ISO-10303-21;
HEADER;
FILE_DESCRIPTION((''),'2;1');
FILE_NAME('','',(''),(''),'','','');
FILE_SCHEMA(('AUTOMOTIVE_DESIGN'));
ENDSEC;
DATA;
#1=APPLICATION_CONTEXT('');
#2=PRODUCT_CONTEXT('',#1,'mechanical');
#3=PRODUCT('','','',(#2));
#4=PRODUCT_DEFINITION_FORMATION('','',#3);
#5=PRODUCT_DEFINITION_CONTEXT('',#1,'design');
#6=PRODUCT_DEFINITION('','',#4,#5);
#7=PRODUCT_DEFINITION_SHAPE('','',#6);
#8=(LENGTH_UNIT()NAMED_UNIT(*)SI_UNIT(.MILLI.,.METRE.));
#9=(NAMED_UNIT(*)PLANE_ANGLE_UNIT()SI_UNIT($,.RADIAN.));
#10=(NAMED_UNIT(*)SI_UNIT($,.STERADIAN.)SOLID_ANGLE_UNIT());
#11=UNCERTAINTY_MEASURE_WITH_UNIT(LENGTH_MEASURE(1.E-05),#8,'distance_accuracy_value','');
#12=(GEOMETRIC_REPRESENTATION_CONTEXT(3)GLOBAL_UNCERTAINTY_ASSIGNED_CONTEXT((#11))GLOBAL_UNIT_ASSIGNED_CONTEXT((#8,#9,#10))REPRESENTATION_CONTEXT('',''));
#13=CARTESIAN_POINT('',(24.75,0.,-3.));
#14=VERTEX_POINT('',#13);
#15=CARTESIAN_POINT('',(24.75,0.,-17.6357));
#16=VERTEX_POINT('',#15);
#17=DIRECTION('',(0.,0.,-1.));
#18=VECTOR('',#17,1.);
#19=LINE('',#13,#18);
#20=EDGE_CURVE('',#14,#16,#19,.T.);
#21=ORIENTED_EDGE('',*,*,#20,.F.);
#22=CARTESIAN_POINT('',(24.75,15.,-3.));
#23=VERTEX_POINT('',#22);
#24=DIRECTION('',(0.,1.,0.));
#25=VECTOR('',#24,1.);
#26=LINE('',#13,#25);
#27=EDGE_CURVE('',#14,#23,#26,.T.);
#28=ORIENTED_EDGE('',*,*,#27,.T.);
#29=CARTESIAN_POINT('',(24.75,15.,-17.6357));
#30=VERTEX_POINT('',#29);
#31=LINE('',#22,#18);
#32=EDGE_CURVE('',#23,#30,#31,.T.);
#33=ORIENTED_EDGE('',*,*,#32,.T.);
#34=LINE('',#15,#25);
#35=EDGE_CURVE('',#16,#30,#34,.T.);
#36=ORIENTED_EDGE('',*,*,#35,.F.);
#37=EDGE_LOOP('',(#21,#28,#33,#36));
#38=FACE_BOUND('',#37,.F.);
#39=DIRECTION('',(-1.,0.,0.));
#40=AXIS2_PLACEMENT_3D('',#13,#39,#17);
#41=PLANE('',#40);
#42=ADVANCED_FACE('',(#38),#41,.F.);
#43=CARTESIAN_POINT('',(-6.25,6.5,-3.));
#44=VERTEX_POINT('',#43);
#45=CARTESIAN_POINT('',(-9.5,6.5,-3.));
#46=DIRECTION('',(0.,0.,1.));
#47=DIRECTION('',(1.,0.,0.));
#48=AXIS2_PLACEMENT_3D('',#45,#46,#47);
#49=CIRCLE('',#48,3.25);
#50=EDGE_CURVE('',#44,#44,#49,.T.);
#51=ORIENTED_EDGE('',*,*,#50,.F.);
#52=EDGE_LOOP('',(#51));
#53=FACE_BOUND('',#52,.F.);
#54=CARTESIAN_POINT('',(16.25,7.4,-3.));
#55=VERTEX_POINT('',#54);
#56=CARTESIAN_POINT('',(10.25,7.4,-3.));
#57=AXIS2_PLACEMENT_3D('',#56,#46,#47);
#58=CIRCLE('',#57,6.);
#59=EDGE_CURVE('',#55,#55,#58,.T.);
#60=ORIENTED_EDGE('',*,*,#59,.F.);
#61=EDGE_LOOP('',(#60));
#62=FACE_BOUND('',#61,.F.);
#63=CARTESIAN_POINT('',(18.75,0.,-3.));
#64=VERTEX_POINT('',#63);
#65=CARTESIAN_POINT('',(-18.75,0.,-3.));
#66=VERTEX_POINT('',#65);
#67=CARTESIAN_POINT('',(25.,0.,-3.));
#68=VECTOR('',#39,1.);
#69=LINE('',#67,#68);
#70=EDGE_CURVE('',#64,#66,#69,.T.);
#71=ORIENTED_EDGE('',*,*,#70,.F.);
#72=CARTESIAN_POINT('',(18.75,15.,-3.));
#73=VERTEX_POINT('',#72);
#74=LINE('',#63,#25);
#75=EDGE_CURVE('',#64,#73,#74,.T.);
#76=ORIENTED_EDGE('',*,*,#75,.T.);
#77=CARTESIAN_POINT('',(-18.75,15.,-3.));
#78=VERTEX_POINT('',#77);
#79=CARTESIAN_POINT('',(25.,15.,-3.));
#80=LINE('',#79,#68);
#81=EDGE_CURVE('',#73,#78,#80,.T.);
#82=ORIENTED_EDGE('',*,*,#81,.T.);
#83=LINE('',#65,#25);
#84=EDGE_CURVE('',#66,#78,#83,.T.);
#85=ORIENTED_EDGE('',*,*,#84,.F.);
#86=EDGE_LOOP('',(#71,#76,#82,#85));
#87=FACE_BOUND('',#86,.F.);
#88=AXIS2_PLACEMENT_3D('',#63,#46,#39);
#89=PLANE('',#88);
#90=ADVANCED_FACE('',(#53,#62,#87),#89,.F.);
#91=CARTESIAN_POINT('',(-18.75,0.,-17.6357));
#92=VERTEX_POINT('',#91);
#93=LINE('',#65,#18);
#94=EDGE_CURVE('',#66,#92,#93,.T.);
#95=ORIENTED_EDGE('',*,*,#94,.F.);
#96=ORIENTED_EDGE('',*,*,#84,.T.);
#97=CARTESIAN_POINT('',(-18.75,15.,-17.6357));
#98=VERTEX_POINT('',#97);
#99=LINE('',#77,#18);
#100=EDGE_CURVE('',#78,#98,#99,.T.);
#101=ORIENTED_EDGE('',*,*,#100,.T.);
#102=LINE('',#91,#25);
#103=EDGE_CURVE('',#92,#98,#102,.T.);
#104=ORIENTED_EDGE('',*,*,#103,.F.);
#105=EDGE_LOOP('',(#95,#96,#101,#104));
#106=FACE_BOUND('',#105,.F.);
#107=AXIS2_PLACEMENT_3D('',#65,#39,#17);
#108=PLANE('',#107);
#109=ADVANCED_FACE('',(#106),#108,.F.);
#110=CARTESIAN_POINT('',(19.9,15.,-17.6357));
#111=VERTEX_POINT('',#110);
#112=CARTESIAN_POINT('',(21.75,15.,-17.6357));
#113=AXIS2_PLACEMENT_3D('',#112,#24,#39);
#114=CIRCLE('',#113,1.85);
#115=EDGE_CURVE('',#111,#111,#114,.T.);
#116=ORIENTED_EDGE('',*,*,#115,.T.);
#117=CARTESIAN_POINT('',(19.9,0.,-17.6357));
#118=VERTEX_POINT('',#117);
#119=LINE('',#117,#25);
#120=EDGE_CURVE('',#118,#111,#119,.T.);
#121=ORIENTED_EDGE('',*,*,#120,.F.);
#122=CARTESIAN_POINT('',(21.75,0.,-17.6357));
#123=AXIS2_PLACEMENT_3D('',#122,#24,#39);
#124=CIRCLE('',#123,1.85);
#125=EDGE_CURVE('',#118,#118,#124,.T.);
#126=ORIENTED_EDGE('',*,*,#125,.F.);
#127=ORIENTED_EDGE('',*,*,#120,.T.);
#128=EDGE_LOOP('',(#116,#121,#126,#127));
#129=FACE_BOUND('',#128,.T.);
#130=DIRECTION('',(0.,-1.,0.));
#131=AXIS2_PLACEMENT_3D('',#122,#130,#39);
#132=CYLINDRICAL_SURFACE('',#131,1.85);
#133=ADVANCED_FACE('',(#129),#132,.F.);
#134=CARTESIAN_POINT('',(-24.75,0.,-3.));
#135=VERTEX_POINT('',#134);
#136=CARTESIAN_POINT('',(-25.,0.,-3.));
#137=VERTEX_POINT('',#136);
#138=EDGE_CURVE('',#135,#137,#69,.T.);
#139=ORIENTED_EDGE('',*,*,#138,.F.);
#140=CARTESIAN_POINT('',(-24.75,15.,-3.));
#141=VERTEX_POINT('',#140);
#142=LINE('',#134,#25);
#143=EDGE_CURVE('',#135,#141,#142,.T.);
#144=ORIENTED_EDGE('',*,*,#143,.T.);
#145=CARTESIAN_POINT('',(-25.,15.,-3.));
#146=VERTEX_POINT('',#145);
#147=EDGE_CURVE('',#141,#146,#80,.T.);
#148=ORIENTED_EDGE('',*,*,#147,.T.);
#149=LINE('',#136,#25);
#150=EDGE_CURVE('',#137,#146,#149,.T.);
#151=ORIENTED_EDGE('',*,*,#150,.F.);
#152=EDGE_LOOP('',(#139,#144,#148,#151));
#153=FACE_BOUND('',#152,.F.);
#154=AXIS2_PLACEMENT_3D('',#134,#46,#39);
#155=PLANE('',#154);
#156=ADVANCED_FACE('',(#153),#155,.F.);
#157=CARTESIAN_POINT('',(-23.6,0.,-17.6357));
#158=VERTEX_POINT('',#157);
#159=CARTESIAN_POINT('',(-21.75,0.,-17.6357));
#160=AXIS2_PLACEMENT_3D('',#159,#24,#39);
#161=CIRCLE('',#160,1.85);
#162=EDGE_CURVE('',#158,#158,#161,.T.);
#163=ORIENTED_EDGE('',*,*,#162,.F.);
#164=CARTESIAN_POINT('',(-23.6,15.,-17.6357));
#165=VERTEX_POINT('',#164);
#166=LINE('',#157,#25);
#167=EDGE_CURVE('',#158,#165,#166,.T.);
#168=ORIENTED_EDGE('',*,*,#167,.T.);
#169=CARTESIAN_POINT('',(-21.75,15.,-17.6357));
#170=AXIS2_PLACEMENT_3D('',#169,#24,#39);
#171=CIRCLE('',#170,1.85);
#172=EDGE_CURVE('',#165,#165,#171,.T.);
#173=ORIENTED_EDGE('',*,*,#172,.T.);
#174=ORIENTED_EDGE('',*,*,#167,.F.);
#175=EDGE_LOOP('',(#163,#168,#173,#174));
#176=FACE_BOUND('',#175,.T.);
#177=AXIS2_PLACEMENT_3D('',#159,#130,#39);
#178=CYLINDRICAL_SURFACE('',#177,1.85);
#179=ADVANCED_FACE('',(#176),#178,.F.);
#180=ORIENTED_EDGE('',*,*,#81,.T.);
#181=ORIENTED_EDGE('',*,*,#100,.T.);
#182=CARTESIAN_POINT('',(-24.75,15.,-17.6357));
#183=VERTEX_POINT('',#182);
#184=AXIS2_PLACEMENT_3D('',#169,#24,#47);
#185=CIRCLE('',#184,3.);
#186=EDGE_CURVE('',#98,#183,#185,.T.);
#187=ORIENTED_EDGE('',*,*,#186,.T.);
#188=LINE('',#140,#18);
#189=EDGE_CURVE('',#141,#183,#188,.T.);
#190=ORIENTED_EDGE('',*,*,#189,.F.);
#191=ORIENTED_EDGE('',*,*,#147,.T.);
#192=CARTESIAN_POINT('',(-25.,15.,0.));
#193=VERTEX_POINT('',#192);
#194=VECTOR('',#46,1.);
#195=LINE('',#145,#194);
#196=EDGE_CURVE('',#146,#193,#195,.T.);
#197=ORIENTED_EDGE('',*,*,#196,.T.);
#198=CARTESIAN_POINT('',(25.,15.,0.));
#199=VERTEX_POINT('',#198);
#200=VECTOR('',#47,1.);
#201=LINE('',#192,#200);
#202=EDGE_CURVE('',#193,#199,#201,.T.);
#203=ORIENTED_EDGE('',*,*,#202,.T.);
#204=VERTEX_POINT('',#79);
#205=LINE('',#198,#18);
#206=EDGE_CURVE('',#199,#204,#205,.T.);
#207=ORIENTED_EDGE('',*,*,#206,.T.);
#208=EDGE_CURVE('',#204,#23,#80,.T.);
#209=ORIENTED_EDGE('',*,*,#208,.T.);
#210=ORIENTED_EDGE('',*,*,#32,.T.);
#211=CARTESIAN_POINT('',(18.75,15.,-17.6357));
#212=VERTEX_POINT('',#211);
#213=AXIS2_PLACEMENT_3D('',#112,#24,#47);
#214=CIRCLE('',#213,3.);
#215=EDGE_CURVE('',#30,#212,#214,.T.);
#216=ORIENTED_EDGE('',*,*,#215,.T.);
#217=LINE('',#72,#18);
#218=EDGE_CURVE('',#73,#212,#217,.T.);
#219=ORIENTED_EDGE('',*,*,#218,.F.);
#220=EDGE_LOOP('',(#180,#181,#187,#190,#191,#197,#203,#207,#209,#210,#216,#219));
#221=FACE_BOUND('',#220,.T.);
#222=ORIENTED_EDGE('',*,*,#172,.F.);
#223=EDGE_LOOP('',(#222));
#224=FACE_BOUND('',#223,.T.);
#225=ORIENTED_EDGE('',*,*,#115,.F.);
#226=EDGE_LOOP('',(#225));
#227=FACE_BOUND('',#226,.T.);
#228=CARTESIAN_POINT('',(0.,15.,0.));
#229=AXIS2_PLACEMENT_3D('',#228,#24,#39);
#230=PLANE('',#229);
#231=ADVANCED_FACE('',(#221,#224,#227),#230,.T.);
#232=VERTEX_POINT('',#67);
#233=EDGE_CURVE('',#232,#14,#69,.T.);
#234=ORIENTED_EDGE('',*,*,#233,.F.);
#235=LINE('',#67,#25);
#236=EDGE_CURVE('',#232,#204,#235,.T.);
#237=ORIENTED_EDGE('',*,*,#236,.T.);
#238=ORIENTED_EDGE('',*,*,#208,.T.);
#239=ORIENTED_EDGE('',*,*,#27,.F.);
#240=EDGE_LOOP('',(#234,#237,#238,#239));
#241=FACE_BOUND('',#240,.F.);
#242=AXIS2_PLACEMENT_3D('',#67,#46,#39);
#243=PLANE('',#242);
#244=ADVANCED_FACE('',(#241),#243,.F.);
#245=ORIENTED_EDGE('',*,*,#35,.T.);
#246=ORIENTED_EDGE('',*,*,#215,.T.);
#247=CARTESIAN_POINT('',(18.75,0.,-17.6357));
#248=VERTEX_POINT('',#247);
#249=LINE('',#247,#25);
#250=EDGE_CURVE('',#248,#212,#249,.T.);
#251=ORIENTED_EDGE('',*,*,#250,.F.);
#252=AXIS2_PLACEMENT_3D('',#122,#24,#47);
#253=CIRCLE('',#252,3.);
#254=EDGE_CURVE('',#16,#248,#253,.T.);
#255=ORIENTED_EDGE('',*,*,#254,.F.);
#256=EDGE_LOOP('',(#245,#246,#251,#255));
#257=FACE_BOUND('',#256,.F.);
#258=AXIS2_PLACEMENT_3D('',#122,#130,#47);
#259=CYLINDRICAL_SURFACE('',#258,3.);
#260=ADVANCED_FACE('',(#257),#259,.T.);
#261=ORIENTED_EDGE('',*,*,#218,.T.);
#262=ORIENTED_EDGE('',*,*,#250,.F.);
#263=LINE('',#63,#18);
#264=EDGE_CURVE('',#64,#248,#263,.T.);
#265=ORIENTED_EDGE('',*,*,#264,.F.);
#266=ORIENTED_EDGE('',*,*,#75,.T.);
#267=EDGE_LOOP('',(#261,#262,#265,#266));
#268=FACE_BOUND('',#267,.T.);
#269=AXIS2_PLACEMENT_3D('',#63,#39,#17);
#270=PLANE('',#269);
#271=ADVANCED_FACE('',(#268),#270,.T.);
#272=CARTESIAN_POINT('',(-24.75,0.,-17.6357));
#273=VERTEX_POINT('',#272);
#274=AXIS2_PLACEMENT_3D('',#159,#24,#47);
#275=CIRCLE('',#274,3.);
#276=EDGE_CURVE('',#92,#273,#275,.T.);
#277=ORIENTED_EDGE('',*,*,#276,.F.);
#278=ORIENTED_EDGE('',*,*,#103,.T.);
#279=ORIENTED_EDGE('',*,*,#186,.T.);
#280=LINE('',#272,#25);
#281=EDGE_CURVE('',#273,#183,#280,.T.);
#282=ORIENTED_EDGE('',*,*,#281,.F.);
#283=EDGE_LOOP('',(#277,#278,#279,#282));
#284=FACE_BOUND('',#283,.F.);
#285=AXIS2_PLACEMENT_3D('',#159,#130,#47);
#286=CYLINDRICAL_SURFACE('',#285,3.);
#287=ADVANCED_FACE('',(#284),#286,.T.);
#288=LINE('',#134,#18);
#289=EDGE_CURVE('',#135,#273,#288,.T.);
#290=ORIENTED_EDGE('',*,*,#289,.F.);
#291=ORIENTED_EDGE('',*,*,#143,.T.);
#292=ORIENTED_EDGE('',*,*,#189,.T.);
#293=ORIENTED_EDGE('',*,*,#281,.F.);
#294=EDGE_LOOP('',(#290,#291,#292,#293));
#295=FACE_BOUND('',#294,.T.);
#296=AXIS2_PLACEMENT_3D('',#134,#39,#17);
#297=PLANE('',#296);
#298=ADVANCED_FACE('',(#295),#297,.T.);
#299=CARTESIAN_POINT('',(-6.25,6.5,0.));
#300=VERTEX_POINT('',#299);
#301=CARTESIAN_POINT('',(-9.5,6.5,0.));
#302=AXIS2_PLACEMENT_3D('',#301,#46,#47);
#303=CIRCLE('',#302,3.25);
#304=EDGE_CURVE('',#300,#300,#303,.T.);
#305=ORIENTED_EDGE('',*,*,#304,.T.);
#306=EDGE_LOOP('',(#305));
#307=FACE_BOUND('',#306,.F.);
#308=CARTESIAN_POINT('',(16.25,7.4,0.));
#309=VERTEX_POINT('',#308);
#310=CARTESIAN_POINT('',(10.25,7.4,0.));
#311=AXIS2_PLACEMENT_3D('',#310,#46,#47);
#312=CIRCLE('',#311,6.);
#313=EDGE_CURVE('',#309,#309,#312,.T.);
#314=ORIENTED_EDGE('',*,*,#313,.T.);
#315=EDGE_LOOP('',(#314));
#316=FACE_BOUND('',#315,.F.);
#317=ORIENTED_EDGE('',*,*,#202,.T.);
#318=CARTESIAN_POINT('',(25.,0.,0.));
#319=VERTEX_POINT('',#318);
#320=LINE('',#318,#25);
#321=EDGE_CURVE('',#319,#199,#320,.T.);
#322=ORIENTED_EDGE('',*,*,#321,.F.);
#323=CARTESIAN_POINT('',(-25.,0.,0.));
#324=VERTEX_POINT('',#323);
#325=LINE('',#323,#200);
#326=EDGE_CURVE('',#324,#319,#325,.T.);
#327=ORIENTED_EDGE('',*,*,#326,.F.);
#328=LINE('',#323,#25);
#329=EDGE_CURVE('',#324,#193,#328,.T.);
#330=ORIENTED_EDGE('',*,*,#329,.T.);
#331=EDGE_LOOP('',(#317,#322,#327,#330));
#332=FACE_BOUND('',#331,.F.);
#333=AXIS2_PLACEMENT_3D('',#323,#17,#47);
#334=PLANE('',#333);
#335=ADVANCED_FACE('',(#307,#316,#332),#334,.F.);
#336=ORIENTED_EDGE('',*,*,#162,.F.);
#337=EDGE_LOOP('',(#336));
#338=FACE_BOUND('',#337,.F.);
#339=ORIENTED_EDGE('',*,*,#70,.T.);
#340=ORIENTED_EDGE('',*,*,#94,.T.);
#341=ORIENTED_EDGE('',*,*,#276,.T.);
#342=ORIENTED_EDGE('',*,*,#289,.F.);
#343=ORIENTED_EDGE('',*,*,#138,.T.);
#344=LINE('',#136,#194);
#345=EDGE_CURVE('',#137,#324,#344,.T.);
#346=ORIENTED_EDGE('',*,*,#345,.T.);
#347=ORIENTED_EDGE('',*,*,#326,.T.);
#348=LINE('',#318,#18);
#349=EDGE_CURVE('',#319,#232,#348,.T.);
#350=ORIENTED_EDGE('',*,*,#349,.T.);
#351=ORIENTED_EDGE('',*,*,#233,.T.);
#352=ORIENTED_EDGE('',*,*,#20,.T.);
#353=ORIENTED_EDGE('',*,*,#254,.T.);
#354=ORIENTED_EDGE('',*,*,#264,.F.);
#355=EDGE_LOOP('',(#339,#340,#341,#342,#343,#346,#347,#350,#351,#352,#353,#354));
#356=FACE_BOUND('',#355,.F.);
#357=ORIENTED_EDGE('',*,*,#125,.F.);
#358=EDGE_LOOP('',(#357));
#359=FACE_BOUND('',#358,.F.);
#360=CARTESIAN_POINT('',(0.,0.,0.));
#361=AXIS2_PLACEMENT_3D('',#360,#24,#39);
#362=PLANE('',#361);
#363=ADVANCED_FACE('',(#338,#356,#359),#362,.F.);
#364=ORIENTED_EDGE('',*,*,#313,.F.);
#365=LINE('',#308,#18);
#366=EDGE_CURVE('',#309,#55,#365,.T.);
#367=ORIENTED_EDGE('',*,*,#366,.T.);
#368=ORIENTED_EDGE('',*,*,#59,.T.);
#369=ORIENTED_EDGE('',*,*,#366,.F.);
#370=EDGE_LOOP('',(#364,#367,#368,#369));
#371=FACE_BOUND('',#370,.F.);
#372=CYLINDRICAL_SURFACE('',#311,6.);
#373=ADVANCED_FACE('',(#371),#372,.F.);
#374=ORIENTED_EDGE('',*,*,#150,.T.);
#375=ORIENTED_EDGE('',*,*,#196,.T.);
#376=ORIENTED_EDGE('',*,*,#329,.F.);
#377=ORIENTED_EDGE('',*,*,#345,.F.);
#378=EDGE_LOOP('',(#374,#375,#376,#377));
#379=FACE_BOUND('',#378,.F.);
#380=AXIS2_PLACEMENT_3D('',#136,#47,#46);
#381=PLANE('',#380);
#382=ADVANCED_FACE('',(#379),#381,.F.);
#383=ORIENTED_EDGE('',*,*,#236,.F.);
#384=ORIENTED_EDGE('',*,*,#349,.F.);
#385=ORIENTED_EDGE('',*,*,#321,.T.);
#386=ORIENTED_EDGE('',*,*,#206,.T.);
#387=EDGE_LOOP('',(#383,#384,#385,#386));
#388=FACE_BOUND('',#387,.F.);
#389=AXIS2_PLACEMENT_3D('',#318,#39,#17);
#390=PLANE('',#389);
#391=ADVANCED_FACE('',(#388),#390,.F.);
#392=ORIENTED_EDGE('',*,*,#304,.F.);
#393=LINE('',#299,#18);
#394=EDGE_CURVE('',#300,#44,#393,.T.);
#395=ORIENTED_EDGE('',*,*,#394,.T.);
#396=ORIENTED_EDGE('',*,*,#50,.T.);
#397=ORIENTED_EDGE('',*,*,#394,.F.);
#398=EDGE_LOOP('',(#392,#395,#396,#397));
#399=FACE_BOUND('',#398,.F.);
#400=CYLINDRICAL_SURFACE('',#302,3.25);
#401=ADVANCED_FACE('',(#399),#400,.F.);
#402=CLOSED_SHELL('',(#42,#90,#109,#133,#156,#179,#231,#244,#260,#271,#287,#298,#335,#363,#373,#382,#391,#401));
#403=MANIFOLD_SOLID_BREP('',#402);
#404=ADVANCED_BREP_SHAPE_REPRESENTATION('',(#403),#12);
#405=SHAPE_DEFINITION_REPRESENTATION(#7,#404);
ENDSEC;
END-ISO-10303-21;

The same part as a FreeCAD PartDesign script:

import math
import FreeCAD as App
import Part
import Sketcher

V = App.Vector

doc = App.newDocument("Part")
params = doc.addObject("Spreadsheet::Sheet", "Params")
for row, (alias, value) in enumerate([
    ("sketch1_radius", "3 mm"),
    ("sketch1_diameter", "3.7 mm"),
    ("sketch1_width", "50 mm"),
    ("sketch1_height", "3 mm"),
    ("pad1_length", "15 mm"),
    ("sketch2_diameter", "6.5 mm"),
    ("sketch3_diameter", "12 mm"),
], start=1):
    params.set(f"A{row}", alias)
    params.set(f"B{row}", "=" + value)
    params.setAlias(f"B{row}", alias)

body = doc.addObject("PartDesign::Body", "Body")

# Sketch on XZ plane
sketch1 = body.newObject("Sketcher::SketchObject", "Sketch")
sketch1.AttachmentSupport = (doc.getObject("XZ_Plane"), [""])
sketch1.MapMode = "FlatFace"
sketch1.addGeometry([
    Part.LineSegment(V(-25, -3, 0), V(-25, 0, 0)),  # 0
    Part.LineSegment(V(-25, 0, 0), V(25, 0, 0)),  # 1
    Part.LineSegment(V(25, 0, 0), V(25, -3, 0)),  # 2
    Part.LineSegment(V(25, -3, 0), V(24.75, -3, 0)),  # 3
    Part.LineSegment(V(24.75, -3, 0), V(24.75, -17.64, 0)),  # 4
    Part.ArcOfCircle(Part.Circle(V(21.75, -17.64, 0), V(0, 0, 1), 3), math.radians(180), math.radians(360)),  # 5
    Part.LineSegment(V(18.75, -17.64, 0), V(18.75, -3, 0)),  # 6
    Part.LineSegment(V(18.75, -3, 0), V(-18.75, -3, 0)),  # 7
    Part.LineSegment(V(-18.75, -3, 0), V(-18.75, -17.64, 0)),  # 8
    Part.ArcOfCircle(Part.Circle(V(-21.75, -17.64, 0), V(0, 0, 1), 3), math.radians(180), math.radians(360)),  # 9
    Part.LineSegment(V(-24.75, -17.64, 0), V(-24.75, -3, 0)),  # 10
    Part.LineSegment(V(-24.75, -3, 0), V(-25, -3, 0)),  # 11
    Part.Circle(V(-21.75, -17.64, 0), V(0, 0, 1), 1.85),  # 12
    Part.Circle(V(21.75, -17.64, 0), V(0, 0, 1), 1.85),  # 13
], False)
sketch1.addConstraint([
    Sketcher.Constraint("Coincident", 0, 2, 1, 1),
    Sketcher.Constraint("Coincident", 1, 2, 2, 1),
    Sketcher.Constraint("Coincident", 2, 2, 3, 1),
    Sketcher.Constraint("Coincident", 3, 2, 4, 1),
    Sketcher.Constraint("Tangent", 4, 2, 5, 2),
    Sketcher.Constraint("Tangent", 5, 1, 6, 1),
    Sketcher.Constraint("Coincident", 6, 2, 7, 1),
    Sketcher.Constraint("Coincident", 7, 2, 8, 1),
    Sketcher.Constraint("Tangent", 8, 2, 9, 2),
    Sketcher.Constraint("Tangent", 9, 1, 10, 1),
    Sketcher.Constraint("Coincident", 10, 2, 11, 1),
    Sketcher.Constraint("Coincident", 11, 2, 0, 1),
    Sketcher.Constraint("Vertical", 0),
    Sketcher.Constraint("Horizontal", 1),
    Sketcher.Constraint("Vertical", 2),
    Sketcher.Constraint("Horizontal", 3),
    Sketcher.Constraint("Vertical", 4),
    Sketcher.Constraint("Vertical", 6),
    Sketcher.Constraint("Horizontal", 7),
    Sketcher.Constraint("Vertical", 8),
    Sketcher.Constraint("Vertical", 10),
    Sketcher.Constraint("Horizontal", 11),
    Sketcher.Constraint("Coincident", 12, 3, 9, 3),
    Sketcher.Constraint("Coincident", 13, 3, 5, 3),
    Sketcher.Constraint("Equal", 5, 9),
    Sketcher.Constraint("Equal", 12, 13),
    Sketcher.Constraint("Symmetric", 0, 2, 1, 2, -1, 1),
    Sketcher.Constraint("Symmetric", 5, 3, 9, 3, -2),
    Sketcher.Constraint("Horizontal", 3, 2, 6, 2),
    Sketcher.Constraint("Horizontal", 7, 2, 10, 2),
    Sketcher.Constraint("Radius", 5, 3.0),
    Sketcher.Constraint("Diameter", 12, 3.7),
    Sketcher.Constraint("DistanceX", 1, 1, 1, 2, 50.0),
    Sketcher.Constraint("DistanceY", 0, 1, 0, 2, 3.0),
    Sketcher.Constraint("DistanceX", 9, 3, 5, 3, 43.5),
    Sketcher.Constraint("DistanceY", 4, 2, 4, 1, 14.6357),
])
sketch1.setExpression("Constraints[30]", "Params.sketch1_radius")
sketch1.setExpression("Constraints[31]", "Params.sketch1_diameter")
sketch1.setExpression("Constraints[32]", "Params.sketch1_width")
sketch1.setExpression("Constraints[33]", "Params.sketch1_height")
pad1 = body.newObject("PartDesign::Pad", "Pad")
pad1.Profile = sketch1
pad1.setExpression("Length", "Params.pad1_length")
pad1.Reversed = True

# Sketch on XY plane
sketch2 = body.newObject("Sketcher::SketchObject", "Sketch001")
sketch2.AttachmentSupport = (doc.getObject("XY_Plane"), [""])
sketch2.MapMode = "FlatFace"
sketch2.addGeometry(Part.Circle(V(-9.5, 6.5, 0), V(0, 0, 1), 3.2), False)
sketch2.addConstraint([
    Sketcher.Constraint("Diameter", 0, 6.5),
    Sketcher.Constraint("DistanceY", -1, 1, 0, 3, 6.5),
    Sketcher.Constraint("DistanceX", 0, 3, -1, 1, 9.5),
])
sketch2.setExpression("Constraints[0]", "Params.sketch2_diameter")
pocket1 = body.newObject("PartDesign::Pocket", "Pocket")
pocket1.Profile = sketch2
pocket1.Type = "ThroughAll"

# Sketch on XY plane
sketch3 = body.newObject("Sketcher::SketchObject", "Sketch002")
sketch3.AttachmentSupport = (doc.getObject("XY_Plane"), [""])
sketch3.MapMode = "FlatFace"
sketch3.addGeometry(Part.Circle(V(10, 7, 0), V(0, 0, 1), 6), False)
sketch3.addConstraint([
    Sketcher.Constraint("Diameter", 0, 12.0),
    Sketcher.Constraint("DistanceY", -1, 1, 0, 3, 7.4),
    Sketcher.Constraint("DistanceX", -1, 1, 0, 3, 10.25),
])
sketch3.setExpression("Constraints[0]", "Params.sketch3_diameter")
pocket2 = body.newObject("PartDesign::Pocket", "Pocket001")
pocket2.Profile = sketch3
pocket2.Type = "ThroughAll"

doc.recompute()
